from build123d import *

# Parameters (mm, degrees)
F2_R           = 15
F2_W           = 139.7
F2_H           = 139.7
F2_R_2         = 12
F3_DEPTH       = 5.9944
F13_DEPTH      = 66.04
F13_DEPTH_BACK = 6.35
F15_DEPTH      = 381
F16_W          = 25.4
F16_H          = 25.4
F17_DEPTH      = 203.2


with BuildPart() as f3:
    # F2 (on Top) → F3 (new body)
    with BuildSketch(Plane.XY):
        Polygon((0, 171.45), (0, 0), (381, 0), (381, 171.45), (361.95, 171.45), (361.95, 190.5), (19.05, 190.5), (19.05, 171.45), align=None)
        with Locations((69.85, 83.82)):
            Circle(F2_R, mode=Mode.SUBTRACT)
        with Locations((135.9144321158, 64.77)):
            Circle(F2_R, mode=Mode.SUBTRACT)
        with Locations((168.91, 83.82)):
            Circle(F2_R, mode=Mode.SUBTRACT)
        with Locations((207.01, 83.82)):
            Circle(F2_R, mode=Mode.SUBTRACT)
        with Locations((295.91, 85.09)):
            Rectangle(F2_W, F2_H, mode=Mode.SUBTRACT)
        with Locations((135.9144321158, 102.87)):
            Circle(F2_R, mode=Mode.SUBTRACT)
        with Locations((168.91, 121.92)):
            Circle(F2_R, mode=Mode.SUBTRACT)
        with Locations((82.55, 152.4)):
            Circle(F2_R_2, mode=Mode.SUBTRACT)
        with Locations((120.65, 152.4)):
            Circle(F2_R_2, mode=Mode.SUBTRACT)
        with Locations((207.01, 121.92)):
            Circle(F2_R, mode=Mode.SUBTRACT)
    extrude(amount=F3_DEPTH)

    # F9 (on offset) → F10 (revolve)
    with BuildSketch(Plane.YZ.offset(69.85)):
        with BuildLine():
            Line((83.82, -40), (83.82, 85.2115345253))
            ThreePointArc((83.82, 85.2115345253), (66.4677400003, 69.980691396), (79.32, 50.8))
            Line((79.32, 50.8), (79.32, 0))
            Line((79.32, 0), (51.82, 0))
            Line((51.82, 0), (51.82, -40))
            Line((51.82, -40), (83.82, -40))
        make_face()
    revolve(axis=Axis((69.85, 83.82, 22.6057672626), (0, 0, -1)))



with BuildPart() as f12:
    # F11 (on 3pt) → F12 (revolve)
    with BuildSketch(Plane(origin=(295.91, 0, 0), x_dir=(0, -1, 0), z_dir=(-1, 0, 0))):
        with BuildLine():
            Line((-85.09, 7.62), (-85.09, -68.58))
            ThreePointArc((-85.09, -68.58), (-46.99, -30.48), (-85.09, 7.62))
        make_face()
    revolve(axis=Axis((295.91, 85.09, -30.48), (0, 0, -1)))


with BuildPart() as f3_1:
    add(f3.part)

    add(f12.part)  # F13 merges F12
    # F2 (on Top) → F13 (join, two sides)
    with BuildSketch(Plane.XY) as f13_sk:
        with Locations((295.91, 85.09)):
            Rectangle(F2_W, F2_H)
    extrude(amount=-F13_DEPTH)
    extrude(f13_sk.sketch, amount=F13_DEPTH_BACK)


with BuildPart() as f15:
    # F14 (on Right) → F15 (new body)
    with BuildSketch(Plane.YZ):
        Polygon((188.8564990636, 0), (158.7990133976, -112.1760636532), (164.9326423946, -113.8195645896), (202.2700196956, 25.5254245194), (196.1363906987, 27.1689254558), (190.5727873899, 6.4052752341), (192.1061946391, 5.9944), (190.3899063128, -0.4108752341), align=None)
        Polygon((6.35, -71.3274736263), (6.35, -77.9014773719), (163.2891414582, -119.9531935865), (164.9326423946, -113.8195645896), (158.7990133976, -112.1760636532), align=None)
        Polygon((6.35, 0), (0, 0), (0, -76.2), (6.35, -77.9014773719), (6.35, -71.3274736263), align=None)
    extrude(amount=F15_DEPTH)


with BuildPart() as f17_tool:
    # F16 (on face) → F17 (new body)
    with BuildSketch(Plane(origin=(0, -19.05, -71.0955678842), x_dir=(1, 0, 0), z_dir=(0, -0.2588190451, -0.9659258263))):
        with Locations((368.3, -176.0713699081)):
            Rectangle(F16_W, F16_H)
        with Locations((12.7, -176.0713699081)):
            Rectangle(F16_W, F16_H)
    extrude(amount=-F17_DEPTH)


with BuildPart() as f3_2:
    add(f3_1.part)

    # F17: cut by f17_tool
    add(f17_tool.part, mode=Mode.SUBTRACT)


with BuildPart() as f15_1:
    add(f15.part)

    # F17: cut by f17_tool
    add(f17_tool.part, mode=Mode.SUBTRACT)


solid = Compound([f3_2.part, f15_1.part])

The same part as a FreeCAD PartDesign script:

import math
import FreeCAD as App
import Part
import Sketcher
Q = App.Units.Quantity


def add_polygon(sketch, points):
    """Adds a closed chain of lines whose ends are joined by coincident constraints."""
    first, n = sketch.GeometryCount, len(points)
    for a, b in zip(points, points[1:] + points[:1]):
        sketch.addGeometry(Part.LineSegment(App.Vector(*a, 0), App.Vector(*b, 0)), False)
    for i in range(n):
        sketch.addConstraint(Sketcher.Constraint("Coincident", first + i, 2, first + (i + 1) % n, 1))

doc = App.newDocument("Part")
body = doc.addObject("PartDesign::Body", "Body")

sketch1 = doc.addObject("Sketcher::SketchObject", "Sketch")
body.addObject(sketch1)
sketch1.AttachmentSupport = (doc.XY_Plane, [""])
sketch1.MapMode = "FlatFace"
add_polygon(sketch1, [(0, 171.45), (0, 0), (381, 0), (381, 171.45), (361.95, 171.45), (361.95, 190.5), (19.05, 190.5), (19.05, 171.45)])
sketch1.addGeometry(Part.Circle(App.Vector(69.85, 83.82, 0), App.Vector(0, 0, 1), 15), False)
sketch1.addGeometry(Part.Circle(App.Vector(135.914432, 64.77, 0), App.Vector(0, 0, 1), 15), False)
sketch1.addGeometry(Part.Circle(App.Vector(168.91, 83.82, 0), App.Vector(0, 0, 1), 15), False)
sketch1.addGeometry(Part.Circle(App.Vector(207.01, 83.82, 0), App.Vector(0, 0, 1), 15), False)
add_polygon(sketch1, [(365.76, 15.24), (226.06, 15.24), (226.06, 154.94), (365.76, 154.94)])
sketch1.addGeometry(Part.Circle(App.Vector(135.914432, 102.87, 0), App.Vector(0, 0, 1), 15), False)
sketch1.addGeometry(Part.Circle(App.Vector(168.91, 121.92, 0), App.Vector(0, 0, 1), 15), False)
sketch1.addGeometry(Part.Circle(App.Vector(207.01, 121.92, 0), App.Vector(0, 0, 1), 15), False)
sketch1.addGeometry(Part.Circle(App.Vector(82.55, 152.4, 0), App.Vector(0, 0, 1), 12), False)
sketch1.addGeometry(Part.Circle(App.Vector(120.65, 152.4, 0), App.Vector(0, 0, 1), 12), False)
sketch1.addConstraint(Sketcher.Constraint("Vertical", 0))
sketch1.addConstraint(Sketcher.Constraint("Horizontal", 1))
sketch1.addConstraint(Sketcher.Constraint("Vertical", 2))
sketch1.addConstraint(Sketcher.Constraint("Horizontal", 3))
sketch1.addConstraint(Sketcher.Constraint("Vertical", 4))
sketch1.addConstraint(Sketcher.Constraint("Horizontal", 5))
sketch1.addConstraint(Sketcher.Constraint("Vertical", 6))
sketch1.addConstraint(Sketcher.Constraint("Horizontal", 7))
sketch1.addConstraint(Sketcher.Constraint("Horizontal", 12))
sketch1.addConstraint(Sketcher.Constraint("Vertical", 13))
sketch1.addConstraint(Sketcher.Constraint("Horizontal", 14))
sketch1.addConstraint(Sketcher.Constraint("Vertical", 15))
sketch1.addConstraint(Sketcher.Constraint("Coincident", 0, 2, -1, 1))
sketch1.addConstraint(Sketcher.Constraint("Equal", 8, 9))
sketch1.addConstraint(Sketcher.Constraint("Equal", 9, 10))
sketch1.addConstraint(Sketcher.Constraint("Equal", 10, 11))
sketch1.addConstraint(Sketcher.Constraint("Equal", 11, 16))
sketch1.addConstraint(Sketcher.Constraint("Equal", 16, 17))
sketch1.addConstraint(Sketcher.Constraint("Equal", 17, 18))
sketch1.addConstraint(Sketcher.Constraint("Equal", 19, 20))
sketch1.addConstraint(Sketcher.Constraint("Horizontal", 8, 3, 10, 3))
sketch1.addConstraint(Sketcher.Constraint("Horizontal", 10, 3, 11, 3))
sketch1.addConstraint(Sketcher.Constraint("Horizontal", 17, 3, 18, 3))
sketch1.addConstraint(Sketcher.Constraint("Horizontal", 19, 3, 20, 3))
sketch1.addConstraint(Sketcher.Constraint("Horizontal", 3, 2, 6, 2))
sketch1.addConstraint(Sketcher.Constraint("Vertical", 9, 3, 16, 3))
sketch1.addConstraint(Sketcher.Constraint("Vertical", 10, 3, 17, 3))
sketch1.addConstraint(Sketcher.Constraint("Vertical", 11, 3, 18, 3))
sketch1.addConstraint(Sketcher.Constraint("Equal", 3, 7))
sketch1.addConstraint(Sketcher.Constraint("Equal", 7, 4))
sketch1.addConstraint(Sketcher.Constraint("Equal", 14, 13))
sketch1.addConstraint(Sketcher.Constraint("DistanceX", 1, 1, 1, 2, Q("15 in")))
sketch1.addConstraint(Sketcher.Constraint("DistanceX", 5, 2, 5, 1, Q("13.5 in")))
sketch1.addConstraint(Sketcher.Constraint("DistanceX", 12, 2, 12, 1, Q("5.5 in")))
sketch1.addConstraint(Sketcher.Constraint("DistanceY", -1, 1, 19, 3, Q("6 in")))
sketch1.addConstraint(Sketcher.Constraint("DistanceX", 8, 3, 20, 3, Q("2 in")))
sketch1.addConstraint(Sketcher.Constraint("DistanceX", 5, 2, 20, 3, Q("4 in")))
sketch1.addConstraint(Sketcher.Constraint("DistanceY", 0, 2, 0, 1, Q("6.75 in")))
sketch1.addConstraint(Sketcher.Constraint("DistanceY", -1, 1, 8, 3, Q("3.3 in")))
sketch1.addConstraint(Sketcher.Constraint("DistanceY", -1, 1, 17, 3, Q("4.8 in")))
sketch1.addConstraint(Sketcher.Constraint("DistanceX", -1, 1, 12, 2, Q("8.9 in")))
sketch1.addConstraint(Sketcher.Constraint("DistanceY", -1, 1, 12, 2, Q("0.6 in")))
sketch1.addConstraint(Sketcher.Constraint("DistanceX", 8, 3, 10, 3, Q("3.9 in")))
sketch1.addConstraint(Sketcher.Constraint("DistanceX", 10, 3, 11, 3, Q("1.5 in")))
sketch1.addConstraint(Sketcher.Constraint("DistanceY", 9, 3, 16, 3, Q("1.5 in")))
sketch1.addConstraint(Sketcher.Constraint("DistanceX", 8, 3, 19, 3, Q("0.5 in")))
sketch1.addConstraint(Sketcher.Constraint("DistanceY", 16, 3, 6, 2, Q("2.7 in")))
sketch1.addConstraint(Sketcher.Constraint("Diameter", 8, Q("30 mm")))
sketch1.addConstraint(Sketcher.Constraint("Diameter", 19, Q("24 mm")))
sketch1.addConstraint(Sketcher.Constraint("DistanceX", -1, 1, 9, 3, Q("135.914432 mm")))
pad1 = doc.addObject("PartDesign::Pad", "Pad")
body.addObject(pad1)
pad1.Profile = sketch1
pad1.Length = Q("0.236 in")

sketch2 = doc.addObject("Sketcher::SketchObject", "Sketch001")
body.addObject(sketch2)
sketch2.AttachmentSupport = (doc.YZ_Plane, [""])
sketch2.MapMode = "FlatFace"
sketch2.AttachmentOffset = App.Placement(App.Vector(0, 0, 2.75 * 25.4), App.Rotation())
sketch2.addGeometry(Part.LineSegment(App.Vector(83.82, -40, 0), App.Vector(83.82, 85.211535, 0)), False)
sketch2.addGeometry(Part.ArcOfCircle(Part.Circle(App.Vector(83.82, 67.711535, 0), App.Vector(0, 0, 1), 17.5), math.radians(90), math.radians(255.099403)), False)
sketch2.addGeometry(Part.LineSegment(App.Vector(79.32, 50.8, 0), App.Vector(79.32, 0, 0)), False)
sketch2.addGeometry(Part.LineSegment(App.Vector(79.32, 0, 0), App.Vector(51.82, 0, 0)), False)
sketch2.addGeometry(Part.LineSegment(App.Vector(51.82, 0, 0), App.Vector(51.82, -40, 0)), False)
sketch2.addGeometry(Part.LineSegment(App.Vector(51.82, -40, 0), App.Vector(83.82, -40, 0)), False)
sketch2.addGeometry(Part.LineSegment(App.Vector(83.82, 85.211535, 0), App.Vector(83.82, -40, 0)), True)
sketch2.addConstraint(Sketcher.Constraint("Coincident", 0, 2, 1, 1))
sketch2.addConstraint(Sketcher.Constraint("Coincident", 1, 2, 2, 1))
sketch2.addConstraint(Sketcher.Constraint("Coincident", 2, 2, 3, 1))
sketch2.addConstraint(Sketcher.Constraint("Coincident", 3, 2, 4, 1))
sketch2.addConstraint(Sketcher.Constraint("Coincident", 4, 2, 5, 1))
sketch2.addConstraint(Sketcher.Constraint("Coincident", 5, 2, 0, 1))
sketch2.addConstraint(Sketcher.Constraint("Vertical", 0))
sketch2.addConstraint(Sketcher.Constraint("Vertical", 2))
sketch2.addConstraint(Sketcher.Constraint("Horizontal", 3))
sketch2.addConstraint(Sketcher.Constraint("Vertical", 4))
sketch2.addConstraint(Sketcher.Constraint("Horizontal", 5))
sketch2.addConstraint(Sketcher.Constraint("Vertical", 6))
sketch2.addConstraint(Sketcher.Constraint("Coincident", 6, 1, 0, 2))
sketch2.addConstraint(Sketcher.Constraint("PointOnObject", 2, 2, -1))
sketch2.addConstraint(Sketcher.Constraint("Horizontal", 4, 2, 6, 2))
sketch2.addConstraint(Sketcher.Constraint("Vertical", 1, 3, 0, 2))
sketch2.addConstraint(Sketcher.Constraint("DistanceY", 2, 2, 2, 1, Q("2 in")))
sketch2.addConstraint(Sketcher.Constraint("DistanceX", -1, 1, 1, 3, Q("3.3 in")))
sketch2.addConstraint(Sketcher.Constraint("Radius", 1, Q("17.5 mm")))
sketch2.addConstraint(Sketcher.Constraint("DistanceX", 3, 2, 3, 1, Q("27.5 mm")))
sketch2.addConstraint(Sketcher.Constraint("DistanceX", 5, 1, 5, 2, Q("32 mm")))
sketch2.addConstraint(Sketcher.Constraint("DistanceY", 4, 2, 4, 1, Q("40 mm")))
revolution = doc.addObject("PartDesign::Revolution", "Revolution")
body.addObject(revolution)
revolution.Profile = sketch2
revolution.ReferenceAxis = (sketch2, ["Axis0"])
revolution.Angle = 360
body2 = doc.addObject("PartDesign::Body", "Body001")

sketch3 = doc.addObject("Sketcher::SketchObject", "Sketch002")
body2.addObject(sketch3)
sketch3.AttachmentSupport = (doc.getObject("YZ_Plane001"), [""])
sketch3.MapMode = "FlatFace"
sketch3.AttachmentOffset = App.Placement(App.Vector(0, 0, 11.65 * 25.4), App.Rotation())
sketch3.addGeometry(Part.LineSegment(App.Vector(85.09, 7.62, 0), App.Vector(85.09, -68.58, 0)), False)
sketch3.addGeometry(Part.ArcOfCircle(Part.Circle(App.Vector(85.09, -30.48, 0), App.Vector(0, 0, 1), 38.1), math.radians(90), math.radians(270)), False)
sketch3.addGeometry(Part.LineSegment(App.Vector(85.09, 7.62, 0), App.Vector(85.09, -68.58, 0)), True)
sketch3.addConstraint(Sketcher.Constraint("Coincident", 0, 1, 1, 1))
sketch3.addConstraint(Sketcher.Constraint("Coincident", 1, 2, 0, 2))
sketch3.addConstraint(Sketcher.Constraint("Vertical", 0))
sketch3.addConstraint(Sketcher.Constraint("Vertical", 2))
sketch3.addConstraint(Sketcher.Constraint("Coincident", 2, 1, 0, 1))
sketch3.addConstraint(Sketcher.Constraint("Vertical", 1, 3, 0, 1))
sketch3.addConstraint(Sketcher.Constraint("Equal", 0, 2))
sketch3.addConstraint(Sketcher.Constraint("Radius", 1, Q("1.5 in")))
sketch3.addConstraint(Sketcher.Constraint("DistanceY", 1, 3, -1, 1, Q("1.2 in")))
sketch3.addConstraint(Sketcher.Constraint("DistanceX", -1, 1, 1, 3, Q("3.35 in")))
revolution2 = doc.addObject("PartDesign::Revolution", "Revolution001")
body2.addObject(revolution2)
revolution2.Profile = sketch3
revolution2.ReferenceAxis = (sketch3, ["Axis0"])
revolution2.Angle = 360
body.AllowCompound = True
doc.recompute()

boolean = doc.addObject("PartDesign::Boolean", "Boolean")
body.addObject(boolean)
boolean.Type = "Fuse"
boolean.addObjects([body2])

sketch4 = doc.addObject("Sketcher::SketchObject", "Sketch003")
body.addObject(sketch4)
sketch4.AttachmentSupport = (doc.XY_Plane, [""])
sketch4.MapMode = "FlatFace"
add_polygon(sketch4, [(226.06, 154.94), (226.06, 15.24), (365.76, 15.24), (365.76, 154.94)])
sketch4.addConstraint(Sketcher.Constraint("Vertical", 0))
sketch4.addConstraint(Sketcher.Constraint("Horizontal", 1))
sketch4.addConstraint(Sketcher.Constraint("Vertical", 2))
sketch4.addConstraint(Sketcher.Constraint("Horizontal", 3))
sketch4.addConstraint(Sketcher.Constraint("Equal", 3, 0))
sketch4.addConstraint(Sketcher.Constraint("DistanceX", 1, 1, 1, 2, Q("5.5 in")))
sketch4.addConstraint(Sketcher.Constraint("DistanceX", -1, 1, 0, 2, Q("8.9 in")))
sketch4.addConstraint(Sketcher.Constraint("DistanceY", -1, 1, 0, 2, Q("0.6 in")))
pad2 = doc.addObject("PartDesign::Pad", "Pad001")
body.addObject(pad2)
pad2.Profile = sketch4
pad2.Type = "TwoLengths"
pad2.Length = Q("2.6 in")
pad2.Length2 = Q("0.25 in")
pad2.Reversed = True
body3 = doc.addObject("PartDesign::Body", "Body002")

sketch5 = doc.addObject("Sketcher::SketchObject", "Sketch004")
body3.addObject(sketch5)
sketch5.AttachmentSupport = (doc.getObject("YZ_Plane002"), [""])
sketch5.MapMode = "FlatFace"
add_polygon(sketch5, [(188.856499, 0), (158.799013, -112.176064), (6.35, -71.327474), (6.35, 0), (0, 0), (0, -76.2), (6.35, -77.901477), (163.289141, -119.953194), (164.932642, -113.819565), (202.27002, 25.525425), (196.136391, 27.168925), (190.572787, 6.405275), (192.106195, 5.9944), (190.389906, -0.410875)])
sketch5.addConstraint(Sketcher.Constraint("Vertical", 2))
sketch5.addConstraint(Sketcher.Constraint("Horizontal", 3))
sketch5.addConstraint(Sketcher.Constraint("Vertical", 4))
sketch5.addConstraint(Sketcher.Constraint("Coincident", 3, 2, -1, 1))
sketch5.addConstraint(Sketcher.Constraint("PointOnObject", 13, 2, -1))
sketch5.addConstraint(Sketcher.Constraint("Perpendicular", 0, 1))
sketch5.addConstraint(Sketcher.Constraint("Parallel", 1, 5))
sketch5.addConstraint(Sketcher.Constraint("Parallel", 5, 6))
sketch5.addConstraint(Sketcher.Constraint("Perpendicular", 6, 7))
sketch5.addConstraint(Sketcher.Constraint("Parallel", 7, 8))
sketch5.addConstraint(Sketcher.Constraint("Perpendicular", 8, 9))
sketch5.addConstraint(Sketcher.Constraint("Perpendicular", 9, 10))
sketch5.addConstraint(Sketcher.Constraint("Perpendicular", 10, 11))
sketch5.addConstraint(Sketcher.Constraint("Perpendicular", 11, 12))
sketch5.addConstraint(Sketcher.Constraint("Perpendicular", 12, 13))
sketch5.addConstraint(Sketcher.Constraint("Vertical", 2, 2, 5, 2))
sketch5.addConstraint(Sketcher.Constraint("Equal", 7, 9))
sketch5.addConstraint(Sketcher.Constraint("Equal", 11, 13))
sketch5.addConstraint(Sketcher.Constraint("DistanceY", 4, 2, 4, 1, Q("3 in")))
sketch5.addConstraint(Sketcher.Constraint("Angle", 0, Q("-105 deg")))
sketch5.addConstraint(Sketcher.Constraint("DistanceX", 3, 2, 3, 1, Q("0.25 in")))
sketch5.addConstraint(Sketcher.Constraint("Distance", 7, Q("0.25 in")))
sketch5.addConstraint(Sketcher.Constraint("Distance", 11, Q("0.0625 in")))
sketch5.addConstraint(Sketcher.Constraint("DistanceY", -1, 1, 11, 2, Q("0.236 in")))
sketch5.addConstraint(Sketcher.Constraint("DistanceX", -1, 1, 13, 2, Q("188.856499 mm")))
sketch5.addConstraint(Sketcher.Constraint("DistanceY", 7, 2, 0, 2, Q("1.643501 mm")))
sketch5.addConstraint(Sketcher.Constraint("DistanceY", 12, 2, 9, 2, Q("27.579801 mm")))
pad3 = doc.addObject("PartDesign::Pad", "Pad002")
body3.addObject(pad3)
pad3.Profile = sketch5
pad3.Length = Q("15 in")
body4 = doc.addObject("PartDesign::Body", "Body003")
body4.AllowCompound = True

sketch6 = doc.addObject("Sketcher::SketchObject", "Sketch005")
body4.addObject(sketch6)
sketch6.Placement = App.Placement(App.Vector(0, -19.05, -71.095568), App.Rotation(App.Vector(1, 0, 0), App.Vector(0, -0.965925826, 0.258819045), App.Vector(0, -0.258819045, -0.965925826), "ZXY"))
add_polygon(sketch6, [(355.6, -163.37137), (355.6, -188.77137), (381, -188.77137), (381, -163.37137)])
add_polygon(sketch6, [(0, -163.37137), (0, -188.77137), (25.4, -188.77137), (25.4, -163.37137)])
sketch6.addConstraint(Sketcher.Constraint("Vertical", 0))
sketch6.addConstraint(Sketcher.Constraint("Horizontal", 1))
sketch6.addConstraint(Sketcher.Constraint("Vertical", 2))
sketch6.addConstraint(Sketcher.Constraint("Horizontal", 3))
sketch6.addConstraint(Sketcher.Constraint("Vertical", 4))
sketch6.addConstraint(Sketcher.Constraint("Horizontal", 5))
sketch6.addConstraint(Sketcher.Constraint("Vertical", 6))
sketch6.addConstraint(Sketcher.Constraint("Horizontal", 7))
sketch6.addConstraint(Sketcher.Constraint("PointOnObject", 4, 2, -2))
sketch6.addConstraint(Sketcher.Constraint("Horizontal", 1, 2, 4, 2))
sketch6.addConstraint(Sketcher.Constraint("Horizontal", 3, 2, 6, 2))
sketch6.addConstraint(Sketcher.Constraint("Equal", 3, 5))
sketch6.addConstraint(Sketcher.Constraint("Equal", 7, 0))
sketch6.addConstraint(Sketcher.Constraint("DistanceX", 1, 1, 1, 2, Q("1 in")))
sketch6.addConstraint(Sketcher.Constraint("DistanceX", -1, 1, 0, 2, Q("14 in")))
sketch6.addConstraint(Sketcher.Constraint("DistanceY", 0, 2, -1, 1, Q("188.77137 mm")))
pad4 = doc.addObject("PartDesign::Pad", "Pad003")
body4.addObject(pad4)
pad4.Profile = sketch6
pad4.Length = Q("8 in")
pad4.Reversed = True
doc.recompute()

body5 = doc.addObject("PartDesign::Body", "Body004")
body5.BaseFeature = body4
boolean2 = doc.addObject("PartDesign::Boolean", "Boolean001")
body.addObject(boolean2)
boolean2.Type = "Cut"
boolean2.addObjects([body5])
doc.recompute()

boolean3 = doc.addObject("PartDesign::Boolean", "Boolean002")
body3.addObject(boolean3)
boolean3.Type = "Cut"
boolean3.addObjects([body4])

doc.recompute()
